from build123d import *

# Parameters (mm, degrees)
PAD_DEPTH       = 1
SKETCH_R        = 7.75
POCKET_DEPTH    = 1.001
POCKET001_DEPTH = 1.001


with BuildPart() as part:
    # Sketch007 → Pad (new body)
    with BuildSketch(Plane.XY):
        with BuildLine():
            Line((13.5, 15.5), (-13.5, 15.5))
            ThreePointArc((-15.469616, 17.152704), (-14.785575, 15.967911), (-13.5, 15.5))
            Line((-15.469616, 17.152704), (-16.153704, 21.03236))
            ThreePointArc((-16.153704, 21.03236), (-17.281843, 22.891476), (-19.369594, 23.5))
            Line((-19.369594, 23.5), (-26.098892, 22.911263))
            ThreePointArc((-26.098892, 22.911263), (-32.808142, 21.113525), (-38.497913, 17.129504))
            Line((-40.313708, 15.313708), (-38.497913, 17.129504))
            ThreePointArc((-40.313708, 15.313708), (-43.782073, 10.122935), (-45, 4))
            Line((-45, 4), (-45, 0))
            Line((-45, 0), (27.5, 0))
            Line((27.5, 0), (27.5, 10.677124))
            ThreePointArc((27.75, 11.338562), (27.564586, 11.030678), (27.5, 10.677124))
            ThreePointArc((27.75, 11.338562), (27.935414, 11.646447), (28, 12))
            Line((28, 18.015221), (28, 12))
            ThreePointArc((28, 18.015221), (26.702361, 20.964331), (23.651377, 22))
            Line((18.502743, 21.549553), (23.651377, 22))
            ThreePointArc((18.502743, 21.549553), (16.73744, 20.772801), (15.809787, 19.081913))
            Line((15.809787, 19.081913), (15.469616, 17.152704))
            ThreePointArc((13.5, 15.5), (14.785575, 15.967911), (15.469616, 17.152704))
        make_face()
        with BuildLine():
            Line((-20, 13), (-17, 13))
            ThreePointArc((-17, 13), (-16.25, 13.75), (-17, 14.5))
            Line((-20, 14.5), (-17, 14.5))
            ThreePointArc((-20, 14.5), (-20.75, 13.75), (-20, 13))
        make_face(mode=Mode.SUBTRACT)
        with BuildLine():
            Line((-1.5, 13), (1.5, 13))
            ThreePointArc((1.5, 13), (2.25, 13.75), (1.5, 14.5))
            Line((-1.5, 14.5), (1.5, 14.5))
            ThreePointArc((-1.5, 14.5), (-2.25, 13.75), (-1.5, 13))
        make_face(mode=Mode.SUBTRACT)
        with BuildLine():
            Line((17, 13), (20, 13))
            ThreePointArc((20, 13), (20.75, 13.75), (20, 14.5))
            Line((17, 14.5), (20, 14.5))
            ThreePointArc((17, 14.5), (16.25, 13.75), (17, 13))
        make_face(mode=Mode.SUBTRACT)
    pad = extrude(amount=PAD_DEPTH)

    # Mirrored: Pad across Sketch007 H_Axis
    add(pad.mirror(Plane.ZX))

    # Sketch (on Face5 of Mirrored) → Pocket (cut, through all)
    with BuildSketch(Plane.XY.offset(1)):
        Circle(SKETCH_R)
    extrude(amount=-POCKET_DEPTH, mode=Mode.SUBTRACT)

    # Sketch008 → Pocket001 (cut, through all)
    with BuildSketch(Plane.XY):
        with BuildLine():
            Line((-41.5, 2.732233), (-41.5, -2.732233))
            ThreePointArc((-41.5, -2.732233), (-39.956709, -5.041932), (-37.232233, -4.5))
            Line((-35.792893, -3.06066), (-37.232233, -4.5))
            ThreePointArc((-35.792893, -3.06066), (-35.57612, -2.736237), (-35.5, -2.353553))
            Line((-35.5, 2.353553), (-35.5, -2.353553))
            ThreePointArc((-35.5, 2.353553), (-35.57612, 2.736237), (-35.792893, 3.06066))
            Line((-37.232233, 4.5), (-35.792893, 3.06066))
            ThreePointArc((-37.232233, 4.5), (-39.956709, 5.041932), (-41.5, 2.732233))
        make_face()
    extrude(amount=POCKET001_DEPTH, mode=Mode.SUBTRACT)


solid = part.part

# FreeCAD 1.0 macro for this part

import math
import FreeCAD as App
import Part
import Sketcher
Q = App.Units.Quantity

doc = App.newDocument("Part")
body = doc.addObject("PartDesign::Body", "Body")

# Sketch on XY plane
sketch1 = body.newObject("Sketcher::SketchObject", "Sketch")
sketch1.AttachmentSupport = (doc.getObject("XY_Plane"), [""])
sketch1.MapMode = "FlatFace"
sketch1.addGeometry(Part.LineSegment(App.Vector(13.5, 15.5, 0), App.Vector(-13.5, 15.5, 0)), False)
sketch1.addGeometry(Part.ArcOfCircle(Part.Circle(App.Vector(-13.5, 17.5, 0), App.Vector(0, 0, 1), 2), math.radians(-170), math.radians(-90)), False)
sketch1.addGeometry(Part.LineSegment(App.Vector(-15.5, 17.2, 0), App.Vector(-16.2, 21, 0)), False)
sketch1.addGeometry(Part.ArcOfCircle(Part.Circle(App.Vector(-19.1, 20.5, 0), App.Vector(0, 0, 1), 3), math.radians(10), math.radians(95)), False)
sketch1.addGeometry(Part.LineSegment(App.Vector(-19.4, 23.5, 0), App.Vector(-26.1, 22.9, 0)), False)
sketch1.addGeometry(Part.ArcOfCircle(Part.Circle(App.Vector(-24.4, 3, 0), App.Vector(0, 0, 1), 20), math.radians(95), math.radians(135)), False)
sketch1.addGeometry(Part.LineSegment(App.Vector(-38.5, 17.1, 0), App.Vector(-40.3, 15.3, 0)), False)
sketch1.addGeometry(Part.ArcOfCircle(Part.Circle(App.Vector(-29, 4, 0), App.Vector(0, 0, 1), 16), math.radians(135), math.radians(180)), False)
sketch1.addGeometry(Part.LineSegment(App.Vector(-45, 4, 0), App.Vector(-45, 0, 0)), False)
sketch1.addGeometry(Part.LineSegment(App.Vector(-45, 0, 0), App.Vector(27.5, 0, 0)), False)
sketch1.addGeometry(Part.LineSegment(App.Vector(27.5, 0, 0), App.Vector(27.5, 10.7, 0)), False)
sketch1.addGeometry(Part.ArcOfCircle(Part.Circle(App.Vector(28.5, 10.7, 0), App.Vector(0, 0, 1), 1), math.radians(139), math.radians(180)), False)
sketch1.addGeometry(Part.ArcOfCircle(Part.Circle(App.Vector(27, 12, 0), App.Vector(0, 0, 1), 1), math.radians(-41), math.radians(0)), False)
sketch1.addGeometry(Part.LineSegment(App.Vector(28, 12, 0), App.Vector(28, 18, 0)), False)
sketch1.addGeometry(Part.ArcOfCircle(Part.Circle(App.Vector(24, 18, 0), App.Vector(0, 0, 1), 4), math.radians(0), math.radians(95)), False)
sketch1.addGeometry(Part.LineSegment(App.Vector(23.7, 22, 0), App.Vector(18.5, 21.5, 0)), False)
sketch1.addGeometry(Part.ArcOfCircle(Part.Circle(App.Vector(18.8, 18.6, 0), App.Vector(0, 0, 1), 3), math.radians(95), math.radians(170)), False)
sketch1.addGeometry(Part.LineSegment(App.Vector(15.8, 19.1, 0), App.Vector(15.5, 17.2, 0)), False)
sketch1.addGeometry(Part.ArcOfCircle(Part.Circle(App.Vector(13.5, 17.5, 0), App.Vector(0, 0, 1), 2), math.radians(-90), math.radians(-10)), False)
sketch1.addGeometry(Part.LineSegment(App.Vector(-17, 13, 0), App.Vector(-20, 13, 0)), False)
sketch1.addGeometry(Part.ArcOfCircle(Part.Circle(App.Vector(-20, 13.8, 0), App.Vector(0, 0, 1), 0.8), math.radians(90), math.radians(270)), False)
sketch1.addGeometry(Part.LineSegment(App.Vector(-20, 14.5, 0), App.Vector(-17, 14.5, 0)), False)
sketch1.addGeometry(Part.ArcOfCircle(Part.Circle(App.Vector(-17, 13.8, 0), App.Vector(0, 0, 1), 0.8), math.radians(-90), math.radians(90)), False)
sketch1.addGeometry(Part.LineSegment(App.Vector(1.5, 13, 0), App.Vector(-1.5, 13, 0)), False)
sketch1.addGeometry(Part.ArcOfCircle(Part.Circle(App.Vector(-1.5, 13.8, 0), App.Vector(0, 0, 1), 0.8), math.radians(90), math.radians(270)), False)
sketch1.addGeometry(Part.LineSegment(App.Vector(-1.5, 14.5, 0), App.Vector(1.5, 14.5, 0)), False)
sketch1.addGeometry(Part.ArcOfCircle(Part.Circle(App.Vector(1.5, 13.8, 0), App.Vector(0, 0, 1), 0.8), math.radians(-90), math.radians(90)), False)
sketch1.addGeometry(Part.LineSegment(App.Vector(20, 13, 0), App.Vector(17, 13, 0)), False)
sketch1.addGeometry(Part.ArcOfCircle(Part.Circle(App.Vector(17, 13.8, 0), App.Vector(0, 0, 1), 0.8), math.radians(90), math.radians(270)), False)
sketch1.addGeometry(Part.LineSegment(App.Vector(17, 14.5, 0), App.Vector(20, 14.5, 0)), False)
sketch1.addGeometry(Part.ArcOfCircle(Part.Circle(App.Vector(20, 13.8, 0), App.Vector(0, 0, 1), 0.8), math.radians(-90), math.radians(90)), False)
sketch1.addConstraint(Sketcher.Constraint("Tangent", 0, 2, 1, 2))
sketch1.addConstraint(Sketcher.Constraint("Tangent", 1, 1, 2, 1))
sketch1.addConstraint(Sketcher.Constraint("Tangent", 2, 2, 3, 1))
sketch1.addConstraint(Sketcher.Constraint("Tangent", 3, 2, 4, 1))
sketch1.addConstraint(Sketcher.Constraint("Tangent", 4, 2, 5, 1))
sketch1.addConstraint(Sketcher.Constraint("Tangent", 5, 2, 6, 1))
sketch1.addConstraint(Sketcher.Constraint("Tangent", 6, 2, 7, 1))
sketch1.addConstraint(Sketcher.Constraint("Tangent", 7, 2, 8, 1))
sketch1.addConstraint(Sketcher.Constraint("Coincident", 8, 2, 9, 1))
sketch1.addConstraint(Sketcher.Constraint("Coincident", 9, 2, 10, 1))
sketch1.addConstraint(Sketcher.Constraint("Tangent", 10, 2, 11, 2))
sketch1.addConstraint(Sketcher.Constraint("Tangent", 11, 1, 12, 1))
sketch1.addConstraint(Sketcher.Constraint("Coincident", 12, 2, 13, 1))
sketch1.addConstraint(Sketcher.Constraint("Tangent", 13, 2, 14, 1))
sketch1.addConstraint(Sketcher.Constraint("Tangent", 14, 2, 15, 1))
sketch1.addConstraint(Sketcher.Constraint("Tangent", 15, 2, 16, 1))
sketch1.addConstraint(Sketcher.Constraint("Tangent", 16, 2, 17, 1))
sketch1.addConstraint(Sketcher.Constraint("Tangent", 17, 2, 18, 2))
sketch1.addConstraint(Sketcher.Constraint("Tangent", 18, 1, 0, 1))
sketch1.addConstraint(Sketcher.Constraint("Tangent", 19, 2, 20, 2))
sketch1.addConstraint(Sketcher.Constraint("Tangent", 20, 1, 21, 1))
sketch1.addConstraint(Sketcher.Constraint("Tangent", 21, 2, 22, 2))
sketch1.addConstraint(Sketcher.Constraint("Tangent", 22, 1, 19, 1))
sketch1.addConstraint(Sketcher.Constraint("Tangent", 23, 2, 24, 2))
sketch1.addConstraint(Sketcher.Constraint("Tangent", 24, 1, 25, 1))
sketch1.addConstraint(Sketcher.Constraint("Tangent", 25, 2, 26, 2))
sketch1.addConstraint(Sketcher.Constraint("Tangent", 26, 1, 23, 1))
sketch1.addConstraint(Sketcher.Constraint("Tangent", 27, 2, 28, 2))
sketch1.addConstraint(Sketcher.Constraint("Tangent", 28, 1, 29, 1))
sketch1.addConstraint(Sketcher.Constraint("Tangent", 29, 2, 30, 2))
sketch1.addConstraint(Sketcher.Constraint("Tangent", 30, 1, 27, 1))
sketch1.addConstraint(Sketcher.Constraint("Horizontal", 0))
sketch1.addConstraint(Sketcher.Constraint("Vertical", 8))
sketch1.addConstraint(Sketcher.Constraint("Horizontal", 9))
sketch1.addConstraint(Sketcher.Constraint("Vertical", 10))
sketch1.addConstraint(Sketcher.Constraint("Vertical", 13))
sketch1.addConstraint(Sketcher.Constraint("Horizontal", 19))
sketch1.addConstraint(Sketcher.Constraint("Horizontal", 21))
sketch1.addConstraint(Sketcher.Constraint("Horizontal", 23))
sketch1.addConstraint(Sketcher.Constraint("Horizontal", 25))
sketch1.addConstraint(Sketcher.Constraint("Horizontal", 27))
sketch1.addConstraint(Sketcher.Constraint("Horizontal", 29))
sketch1.addConstraint(Sketcher.Constraint("Equal", 3, 16))
sketch1.addConstraint(Sketcher.Constraint("Equal", 1, 18))
sketch1.addConstraint(Sketcher.Constraint("Equal", 22, 24))
sketch1.addConstraint(Sketcher.Constraint("Equal", 26, 28))
sketch1.addConstraint(Sketcher.Constraint("Symmetric", 22, 3, 28, 3, -2))
sketch1.addConstraint(Sketcher.Constraint("Symmetric", 1, 1, 17, 2, -2))
sketch1.addConstraint(Sketcher.Constraint("PointOnObject", 8, 2, -1))
sketch1.addConstraint(Sketcher.Constraint("Parallel", 4, 15))
sketch1.addConstraint(Sketcher.Constraint("Horizontal", 22, 3, 24, 3))
sketch1.addConstraint(Sketcher.Constraint("Equal", 21, 23))
sketch1.addConstraint(Sketcher.Constraint("Equal", 25, 27))
sketch1.addConstraint(Sketcher.Constraint("Radius", 1, 2.000001))
sketch1.addConstraint(Sketcher.Constraint("Radius", 3, 3.0))
sketch1.addConstraint(Sketcher.Constraint("Radius", 14, 3.999999))
sketch1.addConstraint(Sketcher.Constraint("DistanceX", 0, 2, 0, 1, 27.0))
sketch1.addConstraint(Sketcher.Constraint("DistanceX", 19, 2, 19, 1, 3.0))
sketch1.addConstraint(Sketcher.Constraint("DistanceY", 8, 2, 8, 1, 4.0))
sketch1.addConstraint(Sketcher.Constraint("Angle", 2, Q("100 deg")))
sketch1.addConstraint(Sketcher.Constraint("Angle", 4, Q("-175.000002 deg")))
sketch1.addConstraint(Sketcher.Constraint("Angle", 6, Q("-134.999984 deg")))
sketch1.addConstraint(Sketcher.Constraint("Radius", 20, 0.75))
sketch1.addConstraint(Sketcher.Constraint("DistanceX", 9, 1, 9, 2, 72.5))
sketch1.addConstraint(Sketcher.Constraint("DistanceX", -1, 1, 14, 3, 24.000001))
sketch1.addConstraint(Sketcher.Constraint("DistanceX", 20, 3, -1, 1, 20.0))
sketch1.addConstraint(Sketcher.Constraint("DistanceX", 7, 2, -1, 1, 45.0))
sketch1.addConstraint(Sketcher.Constraint("DistanceY", -1, 1, 12, 2, 12.0))
sketch1.addConstraint(Sketcher.Constraint("DistanceY", -1, 1, 14, 2, 22.0))
sketch1.addConstraint(Sketcher.Constraint("DistanceY", -1, 1, 19, 2, 13.0))
sketch1.addConstraint(Sketcher.Constraint("DistanceX", 1, 3, 11, 3, 42.000002))
sketch1.addConstraint(Sketcher.Constraint("DistanceY", 7, 3, 12, 3, 7.999999))
sketch1.addConstraint(Sketcher.Constraint("DistanceX", 1, 3, 24, 3, 12.0))
sketch1.addConstraint(Sketcher.Constraint("DistanceY", 1, 3, 3, 2, 5.999999))
sketch1.addConstraint(Sketcher.Constraint("DistanceY", 24, 1, 0, 2, 1.0))
sketch1.addConstraint(Sketcher.Constraint("DistanceX", -1, 1, 11, 1, 27.75))
sketch1.addConstraint(Sketcher.Constraint("Radius", 7, 15.99999))
sketch1.addConstraint(Sketcher.Constraint("Radius", 5, 19.999997))
pad1 = body.newObject("PartDesign::Pad", "Pad")
pad1.Profile = sketch1
pad1.Length = 1
doc.recompute()

mirrored = body.newObject("PartDesign::Mirrored", "Mirrored")
mirrored.Originals = [pad1]
mirrored.MirrorPlane = (doc.getObject("XZ_Plane"), [""])
body.Tip = mirrored

# Sketch on XY plane
sketch2 = body.newObject("Sketcher::SketchObject", "Sketch001")
sketch2.AttachmentSupport = (doc.getObject("XY_Plane"), [""])
sketch2.MapMode = "FlatFace"
sketch2.AttachmentOffset = App.Placement(App.Vector(0, 0, 1), App.Rotation())
sketch2.addGeometry(Part.Circle(App.Vector(0, 0, 0), App.Vector(0, 0, 1), 8), False)
sketch2.addConstraint(Sketcher.Constraint("Coincident", 0, 3, -1, 1))
sketch2.addConstraint(Sketcher.Constraint("Diameter", 0, 15.5))
pocket1 = body.newObject("PartDesign::Pocket", "Pocket")
pocket1.Profile = sketch2
pocket1.Type = "ThroughAll"

# Sketch on XY plane
sketch3 = body.newObject("Sketcher::SketchObject", "Sketch002")
sketch3.AttachmentSupport = (doc.getObject("XY_Plane"), [""])
sketch3.MapMode = "FlatFace"
sketch3.addGeometry(Part.LineSegment(App.Vector(-41.5, 2.7, 0), App.Vector(-41.5, -2.7, 0)), False)
sketch3.addGeometry(Part.ArcOfCircle(Part.Circle(App.Vector(-39, -2.7, 0), App.Vector(0, 0, 1), 2.5), math.radians(180), math.radians(315)), False)
sketch3.addGeometry(Part.LineSegment(App.Vector(-37.2, -4.5, 0), App.Vector(-35.8, -3.1, 0)), False)
sketch3.addGeometry(Part.ArcOfCircle(Part.Circle(App.Vector(-36.5, -2.4, 0), App.Vector(0, 0, 1), 1), math.radians(-45), math.radians(0)), False)
sketch3.addGeometry(Part.LineSegment(App.Vector(-35.5, -2.4, 0), App.Vector(-35.5, 2.4, 0)), False)
sketch3.addGeometry(Part.ArcOfCircle(Part.Circle(App.Vector(-36.5, 2.4, 0), App.Vector(0, 0, 1), 1), math.radians(0), math.radians(45)), False)
sketch3.addGeometry(Part.LineSegment(App.Vector(-35.8, 3.1, 0), App.Vector(-37.2, 4.5, 0)), False)
sketch3.addGeometry(Part.ArcOfCircle(Part.Circle(App.Vector(-39, 2.7, 0), App.Vector(0, 0, 1), 2.5), math.radians(45), math.radians(180)), False)
sketch3.addConstraint(Sketcher.Constraint("Tangent", 0, 2, 1, 1))
sketch3.addConstraint(Sketcher.Constraint("Tangent", 1, 2, 2, 1))
sketch3.addConstraint(Sketcher.Constraint("Coincident", 2, 2, 3, 1))
sketch3.addConstraint(Sketcher.Constraint("Coincident", 3, 2, 4, 1))
sketch3.addConstraint(Sketcher.Constraint("Coincident", 4, 2, 5, 1))
sketch3.addConstraint(Sketcher.Constraint("Coincident", 5, 2, 6, 1))
sketch3.addConstraint(Sketcher.Constraint("Tangent", 6, 2, 7, 1))
sketch3.addConstraint(Sketcher.Constraint("Tangent", 7, 2, 0, 1))
sketch3.addConstraint(Sketcher.Constraint("Vertical", 0))
sketch3.addConstraint(Sketcher.Constraint("Vertical", 4))
sketch3.addConstraint(Sketcher.Constraint("Equal", 3, 5))
sketch3.addConstraint(Sketcher.Constraint("Equal", 1, 7))
sketch3.addConstraint(Sketcher.Constraint("Symmetric", 2, 2, 5, 2, -1))
sketch3.addConstraint(Sketcher.Constraint("Perpendicular", 2, 6))
sketch3.addConstraint(Sketcher.Constraint("Vertical", 1, 2, 6, 2))
sketch3.addConstraint(Sketcher.Constraint("Radius", 1, 2.5))
sketch3.addConstraint(Sketcher.Constraint("DistanceX", 1, 3, -1, 1, 39.0))
sketch3.addConstraint(Sketcher.Constraint("DistanceY", 1, 2, -1, 1, 4.5))
sketch3.addConstraint(Sketcher.Constraint("DistanceX", 3, 2, -1, 1, 35.5))
sketch3.addConstraint(Sketcher.Constraint("Radius", 3, 0.999994))
sketch3.addConstraint(Sketcher.Constraint("DistanceX", 3, 3, 2, 2, 0.707101))
sketch3.addConstraint(Sketcher.Constraint("DistanceY", 4, 1, 4, 2, 4.707106))
sketch3.addConstraint(Sketcher.Constraint("DistanceY", 1, 3, 3, 2, 0.37868))
pocket2 = body.newObject("PartDesign::Pocket", "Pocket001")
pocket2.Profile = sketch3
pocket2.Type = "ThroughAll"
pocket2.Reversed = True

doc.recompute()
